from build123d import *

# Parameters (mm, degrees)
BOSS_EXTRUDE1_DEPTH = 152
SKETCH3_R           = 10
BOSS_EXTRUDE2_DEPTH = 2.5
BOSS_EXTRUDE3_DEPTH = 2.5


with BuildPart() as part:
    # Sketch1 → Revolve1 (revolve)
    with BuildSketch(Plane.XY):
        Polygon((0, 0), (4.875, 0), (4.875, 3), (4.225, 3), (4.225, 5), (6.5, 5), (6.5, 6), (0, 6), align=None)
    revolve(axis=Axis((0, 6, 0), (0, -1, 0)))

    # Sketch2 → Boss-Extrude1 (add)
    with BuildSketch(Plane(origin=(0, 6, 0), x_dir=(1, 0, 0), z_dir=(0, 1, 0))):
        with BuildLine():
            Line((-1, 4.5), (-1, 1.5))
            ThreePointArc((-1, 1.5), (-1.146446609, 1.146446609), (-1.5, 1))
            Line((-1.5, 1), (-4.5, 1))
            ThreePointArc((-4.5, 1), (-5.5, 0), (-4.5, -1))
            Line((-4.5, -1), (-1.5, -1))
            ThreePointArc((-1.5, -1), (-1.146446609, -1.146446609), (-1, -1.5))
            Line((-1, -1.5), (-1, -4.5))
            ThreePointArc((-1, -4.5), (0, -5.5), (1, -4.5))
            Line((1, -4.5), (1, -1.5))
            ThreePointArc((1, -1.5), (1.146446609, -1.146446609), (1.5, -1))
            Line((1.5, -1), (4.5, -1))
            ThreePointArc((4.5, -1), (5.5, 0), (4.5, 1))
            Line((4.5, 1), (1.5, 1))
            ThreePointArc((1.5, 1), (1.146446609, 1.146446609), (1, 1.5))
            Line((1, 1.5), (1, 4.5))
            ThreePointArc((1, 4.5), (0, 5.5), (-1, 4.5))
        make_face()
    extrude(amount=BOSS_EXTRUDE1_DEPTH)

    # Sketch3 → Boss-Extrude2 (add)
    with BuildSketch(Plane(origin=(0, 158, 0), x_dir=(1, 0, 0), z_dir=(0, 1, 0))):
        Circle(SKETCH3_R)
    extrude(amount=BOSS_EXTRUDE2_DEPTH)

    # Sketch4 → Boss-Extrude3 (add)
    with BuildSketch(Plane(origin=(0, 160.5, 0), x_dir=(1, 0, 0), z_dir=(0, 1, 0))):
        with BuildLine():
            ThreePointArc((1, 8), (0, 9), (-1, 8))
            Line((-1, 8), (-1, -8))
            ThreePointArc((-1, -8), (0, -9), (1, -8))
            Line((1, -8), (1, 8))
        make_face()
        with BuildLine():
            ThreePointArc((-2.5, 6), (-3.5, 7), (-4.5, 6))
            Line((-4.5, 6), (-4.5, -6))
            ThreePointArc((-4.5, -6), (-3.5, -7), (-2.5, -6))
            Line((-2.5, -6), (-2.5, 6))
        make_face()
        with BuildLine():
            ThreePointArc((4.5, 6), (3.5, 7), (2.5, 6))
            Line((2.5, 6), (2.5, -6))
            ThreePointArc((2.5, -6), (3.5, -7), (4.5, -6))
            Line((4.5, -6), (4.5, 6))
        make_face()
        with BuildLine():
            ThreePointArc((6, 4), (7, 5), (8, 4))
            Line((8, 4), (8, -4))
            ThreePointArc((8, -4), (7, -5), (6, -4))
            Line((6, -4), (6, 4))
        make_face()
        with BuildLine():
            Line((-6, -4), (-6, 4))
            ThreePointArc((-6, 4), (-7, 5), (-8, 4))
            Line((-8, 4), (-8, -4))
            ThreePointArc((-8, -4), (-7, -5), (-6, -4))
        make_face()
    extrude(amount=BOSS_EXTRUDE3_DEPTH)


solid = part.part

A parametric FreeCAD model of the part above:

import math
import FreeCAD as App
import Part
import Sketcher

V = App.Vector
Q = App.Units.Quantity


def add_polygon(sketch, points):
    """Adds a closed chain of lines whose ends are joined by coincident constraints."""
    first, n = sketch.GeometryCount, len(points)
    for a, b in zip(points, points[1:] + points[:1]):
        sketch.addGeometry(Part.LineSegment(App.Vector(*a, 0), App.Vector(*b, 0)), False)
    for i in range(n):
        sketch.addConstraint(Sketcher.Constraint("Coincident", first + i, 2, first + (i + 1) % n, 1))

doc = App.newDocument("Part")
params = doc.addObject("Spreadsheet::Sheet", "Params")
for row, (alias, value) in enumerate([
    ("sketch1_height", "3 mm"),
    ("sketch1_height2", "2 mm"),
    ("sketch1_height3", "1 mm"),
    ("sketch1_width", "6.5 mm"),
    ("sketch1_width2", "0.65 mm"),
    ("revolution_angle", "360 deg"),
    ("sketch2_radius", "1 mm"),
    ("sketch2_radius2", "0.5 mm"),
    ("sketch2_width", "3 mm"),
    ("pad1_length", "152 mm"),
    ("sketch3_diameter", "20 mm"),
    ("pad2_length", "2.5 mm"),
    ("sketch4_radius", "1 mm"),
    ("sketch4_height", "16 mm"),
    ("sketch4_height2", "12 mm"),
    ("sketch4_height3", "8 mm"),
    ("pad3_length", "2.5 mm"),
], start=1):
    params.set(f"A{row}", alias)
    params.set(f"B{row}", "=" + value)
    params.setAlias(f"B{row}", alias)

body = doc.addObject("PartDesign::Body", "Body")

# Sketch on XY plane
sketch1 = body.newObject("Sketcher::SketchObject", "Sketch")
sketch1.AttachmentSupport = (doc.getObject("XY_Plane"), [""])
sketch1.MapMode = "FlatFace"
add_polygon(sketch1, [(0, 0), (4.875, 0), (4.875, 3), (4.225, 3), (4.225, 5), (6.5, 5), (6.5, 6), (0, 6)])  # lines 0-7
sketch1.addConstraint(Sketcher.Constraint("Horizontal", 0))
sketch1.addConstraint(Sketcher.Constraint("Vertical", 1))
sketch1.addConstraint(Sketcher.Constraint("Horizontal", 2))
sketch1.addConstraint(Sketcher.Constraint("Vertical", 3))
sketch1.addConstraint(Sketcher.Constraint("Horizontal", 4))
sketch1.addConstraint(Sketcher.Constraint("Vertical", 5))
sketch1.addConstraint(Sketcher.Constraint("Horizontal", 6))
sketch1.addConstraint(Sketcher.Constraint("Vertical", 7))
sketch1.addConstraint(Sketcher.Constraint("Coincident", 7, 2, -1, 1))
sketch1.addConstraint(Sketcher.Constraint("DistanceY", 1, 1, 1, 2, Q("3 mm")))
sketch1.addConstraint(Sketcher.Constraint("DistanceY", 3, 1, 3, 2, Q("2 mm")))
sketch1.addConstraint(Sketcher.Constraint("DistanceY", 5, 1, 5, 2, Q("1 mm")))
sketch1.addConstraint(Sketcher.Constraint("DistanceX", 6, 2, 6, 1, Q("6.5 mm")))
sketch1.addConstraint(Sketcher.Constraint("DistanceX", 2, 2, 2, 1, Q("0.65 mm")))
sketch1.addConstraint(Sketcher.Constraint("DistanceX", 0, 1, 0, 2, Q("4.875 mm")))
sketch1.setExpression("Constraints[17]", "Params.sketch1_height")
sketch1.setExpression("Constraints[18]", "Params.sketch1_height2")
sketch1.setExpression("Constraints[19]", "Params.sketch1_height3")
sketch1.setExpression("Constraints[20]", "Params.sketch1_width")
sketch1.setExpression("Constraints[21]", "Params.sketch1_width2")
revolution = body.newObject("PartDesign::Revolution", "Revolution")
revolution.Profile = sketch1
revolution.ReferenceAxis = (sketch1, ["V_Axis"])
revolution.setExpression("Angle", "Params.revolution_angle")

# Sketch on XZ plane
sketch2 = body.newObject("Sketcher::SketchObject", "Sketch001")
sketch2.AttachmentSupport = (doc.getObject("XZ_Plane"), [""])
sketch2.MapMode = "FlatFace"
sketch2.AttachmentOffset = App.Placement(V(0, 0, -6), App.Rotation())
sketch2.addGeometry(Part.LineSegment(V(-1, -4.5, 0), V(-1, -1.5, 0)), False)
sketch2.addGeometry(Part.ArcOfCircle(Part.Circle(V(-1.5, -1.5, 0), V(0, 0, 1), 0.5), math.radians(0), math.radians(90)), False)
sketch2.addGeometry(Part.LineSegment(V(-1.5, -1, 0), V(-4.5, -1, 0)), False)
sketch2.addGeometry(Part.ArcOfCircle(Part.Circle(V(-4.5, 0, 0), V(0, 0, 1), 1), math.radians(90), math.radians(270)), False)
sketch2.addGeometry(Part.LineSegment(V(-4.5, 1, 0), V(-1.5, 1, 0)), False)
sketch2.addGeometry(Part.ArcOfCircle(Part.Circle(V(-1.5, 1.5, 0), V(0, 0, 1), 0.5), math.radians(-90), math.radians(0)), False)
sketch2.addGeometry(Part.LineSegment(V(-1, 1.5, 0), V(-1, 4.5, 0)), False)
sketch2.addGeometry(Part.ArcOfCircle(Part.Circle(V(0, 4.5, 0), V(0, 0, 1), 1), math.radians(0), math.radians(180)), False)
sketch2.addGeometry(Part.LineSegment(V(1, 4.5, 0), V(1, 1.5, 0)), False)
sketch2.addGeometry(Part.ArcOfCircle(Part.Circle(V(1.5, 1.5, 0), V(0, 0, 1), 0.5), math.radians(180), math.radians(270)), False)
sketch2.addGeometry(Part.LineSegment(V(1.5, 1, 0), V(4.5, 1, 0)), False)
sketch2.addGeometry(Part.ArcOfCircle(Part.Circle(V(4.5, 0, 0), V(0, 0, 1), 1), math.radians(-90), math.radians(90)), False)
sketch2.addGeometry(Part.LineSegment(V(4.5, -1, 0), V(1.5, -1, 0)), False)
sketch2.addGeometry(Part.ArcOfCircle(Part.Circle(V(1.5, -1.5, 0), V(0, 0, 1), 0.5), math.radians(90), math.radians(180)), False)
sketch2.addGeometry(Part.LineSegment(V(1, -1.5, 0), V(1, -4.5, 0)), False)
sketch2.addGeometry(Part.ArcOfCircle(Part.Circle(V(0, -4.5, 0), V(0, 0, 1), 1), math.radians(180), math.radians(360)), False)
sketch2.addConstraint(Sketcher.Constraint("Tangent", 0, 2, 1, 1))
sketch2.addConstraint(Sketcher.Constraint("Tangent", 1, 2, 2, 1))
sketch2.addConstraint(Sketcher.Constraint("Tangent", 2, 2, 3, 2))
sketch2.addConstraint(Sketcher.Constraint("Tangent", 3, 1, 4, 1))
sketch2.addConstraint(Sketcher.Constraint("Tangent", 4, 2, 5, 1))
sketch2.addConstraint(Sketcher.Constraint("Tangent", 5, 2, 6, 1))
sketch2.addConstraint(Sketcher.Constraint("Tangent", 6, 2, 7, 2))
sketch2.addConstraint(Sketcher.Constraint("Tangent", 7, 1, 8, 1))
sketch2.addConstraint(Sketcher.Constraint("Tangent", 8, 2, 9, 1))
sketch2.addConstraint(Sketcher.Constraint("Tangent", 9, 2, 10, 1))
sketch2.addConstraint(Sketcher.Constraint("Tangent", 10, 2, 11, 2))
sketch2.addConstraint(Sketcher.Constraint("Tangent", 11, 1, 12, 1))
sketch2.addConstraint(Sketcher.Constraint("Tangent", 12, 2, 13, 1))
sketch2.addConstraint(Sketcher.Constraint("Tangent", 13, 2, 14, 1))
sketch2.addConstraint(Sketcher.Constraint("Tangent", 14, 2, 15, 2))
sketch2.addConstraint(Sketcher.Constraint("Tangent", 15, 1, 0, 1))
sketch2.addConstraint(Sketcher.Constraint("Vertical", 0))
sketch2.addConstraint(Sketcher.Constraint("Horizontal", 2))
sketch2.addConstraint(Sketcher.Constraint("Horizontal", 4))
sketch2.addConstraint(Sketcher.Constraint("Vertical", 6))
sketch2.addConstraint(Sketcher.Constraint("Vertical", 8))
sketch2.addConstraint(Sketcher.Constraint("Horizontal", 10))
sketch2.addConstraint(Sketcher.Constraint("Horizontal", 12))
sketch2.addConstraint(Sketcher.Constraint("Vertical", 14))
sketch2.addConstraint(Sketcher.Constraint("Equal", 1, 5))
sketch2.addConstraint(Sketcher.Constraint("Equal", 3, 7))
sketch2.addConstraint(Sketcher.Constraint("Equal", 5, 9))
sketch2.addConstraint(Sketcher.Constraint("Equal", 7, 11))
sketch2.addConstraint(Sketcher.Constraint("Equal", 9, 13))
sketch2.addConstraint(Sketcher.Constraint("Equal", 11, 15))
sketch2.addConstraint(Sketcher.Constraint("Symmetric", 1, 3, 9, 3, -1, 1))
sketch2.addConstraint(Sketcher.Constraint("Symmetric", 5, 3, 9, 3, -2))
sketch2.addConstraint(Sketcher.Constraint("Equal", 4, 10))
sketch2.addConstraint(Sketcher.Constraint("Equal", 12, 0))
sketch2.addConstraint(Sketcher.Constraint("Equal", 0, 6))
sketch2.addConstraint(Sketcher.Constraint("Radius", 3, Q("1 mm")))
sketch2.addConstraint(Sketcher.Constraint("Radius", 1, Q("0.5 mm")))
sketch2.addConstraint(Sketcher.Constraint("DistanceX", 2, 2, 2, 1, Q("3 mm")))
sketch2.setExpression("Constraints[35]", "Params.sketch2_radius")
sketch2.setExpression("Constraints[36]", "Params.sketch2_radius2")
sketch2.setExpression("Constraints[37]", "Params.sketch2_width")
pad1 = body.newObject("PartDesign::Pad", "Pad")
pad1.Profile = sketch2
pad1.setExpression("Length", "Params.pad1_length")
pad1.Reversed = True

# Sketch on XZ plane
sketch3 = body.newObject("Sketcher::SketchObject", "Sketch002")
sketch3.AttachmentSupport = (doc.getObject("XZ_Plane"), [""])
sketch3.MapMode = "FlatFace"
sketch3.AttachmentOffset = App.Placement(V(0, 0, -158), App.Rotation())
sketch3.addGeometry(Part.Circle(V(0, 0, 0), V(0, 0, 1), 10), False)
sketch3.addConstraint(Sketcher.Constraint("Coincident", 0, 3, -1, 1))
sketch3.addConstraint(Sketcher.Constraint("Diameter", 0, Q("20 mm")))
sketch3.setExpression("Constraints[1]", "Params.sketch3_diameter")
pad2 = body.newObject("PartDesign::Pad", "Pad001")
pad2.Profile = sketch3
pad2.setExpression("Length", "Params.pad2_length")
pad2.Reversed = True

# Sketch on XZ plane
sketch4 = body.newObject("Sketcher::SketchObject", "Sketch003")
sketch4.AttachmentSupport = (doc.getObject("XZ_Plane"), [""])
sketch4.MapMode = "FlatFace"
sketch4.AttachmentOffset = App.Placement(V(0, 0, -160.5), App.Rotation())
sketch4.addGeometry(Part.ArcOfCircle(Part.Circle(V(0, -8, 0), V(0, 0, 1), 1), math.radians(180), math.radians(360)), False)
sketch4.addGeometry(Part.LineSegment(V(-1, -8, 0), V(-1, 8, 0)), False)
sketch4.addGeometry(Part.ArcOfCircle(Part.Circle(V(0, 8, 0), V(0, 0, 1), 1), math.radians(0), math.radians(180)), False)
sketch4.addGeometry(Part.LineSegment(V(1, 8, 0), V(1, -8, 0)), False)
sketch4.addGeometry(Part.ArcOfCircle(Part.Circle(V(-3.5, -6, 0), V(0, 0, 1), 1), math.radians(180), math.radians(360)), False)
sketch4.addGeometry(Part.LineSegment(V(-4.5, -6, 0), V(-4.5, 6, 0)), False)
sketch4.addGeometry(Part.ArcOfCircle(Part.Circle(V(-3.5, 6, 0), V(0, 0, 1), 1), math.radians(0), math.radians(180)), False)
sketch4.addGeometry(Part.LineSegment(V(-2.5, 6, 0), V(-2.5, -6, 0)), False)
sketch4.addGeometry(Part.ArcOfCircle(Part.Circle(V(3.5, -6, 0), V(0, 0, 1), 1), math.radians(180), math.radians(360)), False)
sketch4.addGeometry(Part.LineSegment(V(2.5, -6, 0), V(2.5, 6, 0)), False)
sketch4.addGeometry(Part.ArcOfCircle(Part.Circle(V(3.5, 6, 0), V(0, 0, 1), 1), math.radians(0), math.radians(180)), False)
sketch4.addGeometry(Part.LineSegment(V(4.5, 6, 0), V(4.5, -6, 0)), False)
sketch4.addGeometry(Part.ArcOfCircle(Part.Circle(V(7, -4, 0), V(0, 0, 1), 1), math.radians(180), math.radians(360)), False)
sketch4.addGeometry(Part.LineSegment(V(6, -4, 0), V(6, 4, 0)), False)
sketch4.addGeometry(Part.ArcOfCircle(Part.Circle(V(7, 4, 0), V(0, 0, 1), 1), math.radians(0), math.radians(180)), False)
sketch4.addGeometry(Part.LineSegment(V(8, 4, 0), V(8, -4, 0)), False)
sketch4.addGeometry(Part.LineSegment(V(-6, 4, 0), V(-6, -4, 0)), False)
sketch4.addGeometry(Part.ArcOfCircle(Part.Circle(V(-7, -4, 0), V(0, 0, 1), 1), math.radians(180), math.radians(360)), False)
sketch4.addGeometry(Part.LineSegment(V(-8, -4, 0), V(-8, 4, 0)), False)
sketch4.addGeometry(Part.ArcOfCircle(Part.Circle(V(-7, 4, 0), V(0, 0, 1), 1), math.radians(0), math.radians(180)), False)
sketch4.addConstraint(Sketcher.Constraint("Tangent", 0, 1, 1, 1))
sketch4.addConstraint(Sketcher.Constraint("Tangent", 1, 2, 2, 2))
sketch4.addConstraint(Sketcher.Constraint("Tangent", 2, 1, 3, 1))
sketch4.addConstraint(Sketcher.Constraint("Tangent", 3, 2, 0, 2))
sketch4.addConstraint(Sketcher.Constraint("Tangent", 4, 1, 5, 1))
sketch4.addConstraint(Sketcher.Constraint("Tangent", 5, 2, 6, 2))
sketch4.addConstraint(Sketcher.Constraint("Tangent", 6, 1, 7, 1))
sketch4.addConstraint(Sketcher.Constraint("Tangent", 7, 2, 4, 2))
sketch4.addConstraint(Sketcher.Constraint("Tangent", 8, 1, 9, 1))
sketch4.addConstraint(Sketcher.Constraint("Tangent", 9, 2, 10, 2))
sketch4.addConstraint(Sketcher.Constraint("Tangent", 10, 1, 11, 1))
sketch4.addConstraint(Sketcher.Constraint("Tangent", 11, 2, 8, 2))
sketch4.addConstraint(Sketcher.Constraint("Tangent", 12, 1, 13, 1))
sketch4.addConstraint(Sketcher.Constraint("Tangent", 13, 2, 14, 2))
sketch4.addConstraint(Sketcher.Constraint("Tangent", 14, 1, 15, 1))
sketch4.addConstraint(Sketcher.Constraint("Tangent", 15, 2, 12, 2))
sketch4.addConstraint(Sketcher.Constraint("Tangent", 16, 2, 17, 2))
sketch4.addConstraint(Sketcher.Constraint("Tangent", 17, 1, 18, 1))
sketch4.addConstraint(Sketcher.Constraint("Tangent", 18, 2, 19, 2))
sketch4.addConstraint(Sketcher.Constraint("Tangent", 19, 1, 16, 1))
sketch4.addConstraint(Sketcher.Constraint("Vertical", 1))
sketch4.addConstraint(Sketcher.Constraint("Vertical", 3))
sketch4.addConstraint(Sketcher.Constraint("Vertical", 5))
sketch4.addConstraint(Sketcher.Constraint("Vertical", 7))
sketch4.addConstraint(Sketcher.Constraint("Vertical", 9))
sketch4.addConstraint(Sketcher.Constraint("Vertical", 11))
sketch4.addConstraint(Sketcher.Constraint("Vertical", 13))
sketch4.addConstraint(Sketcher.Constraint("Vertical", 15))
sketch4.addConstraint(Sketcher.Constraint("Vertical", 16))
sketch4.addConstraint(Sketcher.Constraint("Vertical", 18))
sketch4.addConstraint(Sketcher.Constraint("Equal", 2, 4))
sketch4.addConstraint(Sketcher.Constraint("Equal", 6, 8))
sketch4.addConstraint(Sketcher.Constraint("Equal", 10, 12))
sketch4.addConstraint(Sketcher.Constraint("Equal", 14, 17))
sketch4.addConstraint(Sketcher.Constraint("Symmetric", 0, 3, 2, 3, -1, 1))
sketch4.addConstraint(Sketcher.Constraint("Symmetric", 6, 3, 8, 3, -1, 1))
sketch4.addConstraint(Sketcher.Constraint("Symmetric", 14, 3, 17, 3, -1, 1))
sketch4.addConstraint(Sketcher.Constraint("Horizontal", 4, 3, 8, 3))
sketch4.addConstraint(Sketcher.Constraint("Horizontal", 6, 3, 10, 3))
sketch4.addConstraint(Sketcher.Constraint("Horizontal", 12, 3, 17, 3))
sketch4.addConstraint(Sketcher.Constraint("Horizontal", 14, 3, 19, 3))
sketch4.addConstraint(Sketcher.Constraint("Radius", 0, Q("1 mm")))
sketch4.addConstraint(Sketcher.Constraint("DistanceY", 1, 1, 1, 2, Q("16 mm")))
sketch4.addConstraint(Sketcher.Constraint("DistanceY", 5, 1, 5, 2, Q("12 mm")))
sketch4.addConstraint(Sketcher.Constraint("DistanceY", 13, 1, 13, 2, Q("8 mm")))
sketch4.addConstraint(Sketcher.Constraint("DistanceX", -1, 1, 12, 3, Q("7 mm")))
sketch4.addConstraint(Sketcher.Constraint("DistanceX", 4, 3, 8, 3, Q("7 mm")))
sketch4.setExpression("Constraints[41]", "Params.sketch4_radius")
sketch4.setExpression("Constraints[42]", "Params.sketch4_height")
sketch4.setExpression("Constraints[43]", "Params.sketch4_height2")
sketch4.setExpression("Constraints[44]", "Params.sketch4_height3")
pad3 = body.newObject("PartDesign::Pad", "Pad002")
pad3.Profile = sketch4
pad3.setExpression("Length", "Params.pad3_length")
pad3.Reversed = True

doc.recompute()
